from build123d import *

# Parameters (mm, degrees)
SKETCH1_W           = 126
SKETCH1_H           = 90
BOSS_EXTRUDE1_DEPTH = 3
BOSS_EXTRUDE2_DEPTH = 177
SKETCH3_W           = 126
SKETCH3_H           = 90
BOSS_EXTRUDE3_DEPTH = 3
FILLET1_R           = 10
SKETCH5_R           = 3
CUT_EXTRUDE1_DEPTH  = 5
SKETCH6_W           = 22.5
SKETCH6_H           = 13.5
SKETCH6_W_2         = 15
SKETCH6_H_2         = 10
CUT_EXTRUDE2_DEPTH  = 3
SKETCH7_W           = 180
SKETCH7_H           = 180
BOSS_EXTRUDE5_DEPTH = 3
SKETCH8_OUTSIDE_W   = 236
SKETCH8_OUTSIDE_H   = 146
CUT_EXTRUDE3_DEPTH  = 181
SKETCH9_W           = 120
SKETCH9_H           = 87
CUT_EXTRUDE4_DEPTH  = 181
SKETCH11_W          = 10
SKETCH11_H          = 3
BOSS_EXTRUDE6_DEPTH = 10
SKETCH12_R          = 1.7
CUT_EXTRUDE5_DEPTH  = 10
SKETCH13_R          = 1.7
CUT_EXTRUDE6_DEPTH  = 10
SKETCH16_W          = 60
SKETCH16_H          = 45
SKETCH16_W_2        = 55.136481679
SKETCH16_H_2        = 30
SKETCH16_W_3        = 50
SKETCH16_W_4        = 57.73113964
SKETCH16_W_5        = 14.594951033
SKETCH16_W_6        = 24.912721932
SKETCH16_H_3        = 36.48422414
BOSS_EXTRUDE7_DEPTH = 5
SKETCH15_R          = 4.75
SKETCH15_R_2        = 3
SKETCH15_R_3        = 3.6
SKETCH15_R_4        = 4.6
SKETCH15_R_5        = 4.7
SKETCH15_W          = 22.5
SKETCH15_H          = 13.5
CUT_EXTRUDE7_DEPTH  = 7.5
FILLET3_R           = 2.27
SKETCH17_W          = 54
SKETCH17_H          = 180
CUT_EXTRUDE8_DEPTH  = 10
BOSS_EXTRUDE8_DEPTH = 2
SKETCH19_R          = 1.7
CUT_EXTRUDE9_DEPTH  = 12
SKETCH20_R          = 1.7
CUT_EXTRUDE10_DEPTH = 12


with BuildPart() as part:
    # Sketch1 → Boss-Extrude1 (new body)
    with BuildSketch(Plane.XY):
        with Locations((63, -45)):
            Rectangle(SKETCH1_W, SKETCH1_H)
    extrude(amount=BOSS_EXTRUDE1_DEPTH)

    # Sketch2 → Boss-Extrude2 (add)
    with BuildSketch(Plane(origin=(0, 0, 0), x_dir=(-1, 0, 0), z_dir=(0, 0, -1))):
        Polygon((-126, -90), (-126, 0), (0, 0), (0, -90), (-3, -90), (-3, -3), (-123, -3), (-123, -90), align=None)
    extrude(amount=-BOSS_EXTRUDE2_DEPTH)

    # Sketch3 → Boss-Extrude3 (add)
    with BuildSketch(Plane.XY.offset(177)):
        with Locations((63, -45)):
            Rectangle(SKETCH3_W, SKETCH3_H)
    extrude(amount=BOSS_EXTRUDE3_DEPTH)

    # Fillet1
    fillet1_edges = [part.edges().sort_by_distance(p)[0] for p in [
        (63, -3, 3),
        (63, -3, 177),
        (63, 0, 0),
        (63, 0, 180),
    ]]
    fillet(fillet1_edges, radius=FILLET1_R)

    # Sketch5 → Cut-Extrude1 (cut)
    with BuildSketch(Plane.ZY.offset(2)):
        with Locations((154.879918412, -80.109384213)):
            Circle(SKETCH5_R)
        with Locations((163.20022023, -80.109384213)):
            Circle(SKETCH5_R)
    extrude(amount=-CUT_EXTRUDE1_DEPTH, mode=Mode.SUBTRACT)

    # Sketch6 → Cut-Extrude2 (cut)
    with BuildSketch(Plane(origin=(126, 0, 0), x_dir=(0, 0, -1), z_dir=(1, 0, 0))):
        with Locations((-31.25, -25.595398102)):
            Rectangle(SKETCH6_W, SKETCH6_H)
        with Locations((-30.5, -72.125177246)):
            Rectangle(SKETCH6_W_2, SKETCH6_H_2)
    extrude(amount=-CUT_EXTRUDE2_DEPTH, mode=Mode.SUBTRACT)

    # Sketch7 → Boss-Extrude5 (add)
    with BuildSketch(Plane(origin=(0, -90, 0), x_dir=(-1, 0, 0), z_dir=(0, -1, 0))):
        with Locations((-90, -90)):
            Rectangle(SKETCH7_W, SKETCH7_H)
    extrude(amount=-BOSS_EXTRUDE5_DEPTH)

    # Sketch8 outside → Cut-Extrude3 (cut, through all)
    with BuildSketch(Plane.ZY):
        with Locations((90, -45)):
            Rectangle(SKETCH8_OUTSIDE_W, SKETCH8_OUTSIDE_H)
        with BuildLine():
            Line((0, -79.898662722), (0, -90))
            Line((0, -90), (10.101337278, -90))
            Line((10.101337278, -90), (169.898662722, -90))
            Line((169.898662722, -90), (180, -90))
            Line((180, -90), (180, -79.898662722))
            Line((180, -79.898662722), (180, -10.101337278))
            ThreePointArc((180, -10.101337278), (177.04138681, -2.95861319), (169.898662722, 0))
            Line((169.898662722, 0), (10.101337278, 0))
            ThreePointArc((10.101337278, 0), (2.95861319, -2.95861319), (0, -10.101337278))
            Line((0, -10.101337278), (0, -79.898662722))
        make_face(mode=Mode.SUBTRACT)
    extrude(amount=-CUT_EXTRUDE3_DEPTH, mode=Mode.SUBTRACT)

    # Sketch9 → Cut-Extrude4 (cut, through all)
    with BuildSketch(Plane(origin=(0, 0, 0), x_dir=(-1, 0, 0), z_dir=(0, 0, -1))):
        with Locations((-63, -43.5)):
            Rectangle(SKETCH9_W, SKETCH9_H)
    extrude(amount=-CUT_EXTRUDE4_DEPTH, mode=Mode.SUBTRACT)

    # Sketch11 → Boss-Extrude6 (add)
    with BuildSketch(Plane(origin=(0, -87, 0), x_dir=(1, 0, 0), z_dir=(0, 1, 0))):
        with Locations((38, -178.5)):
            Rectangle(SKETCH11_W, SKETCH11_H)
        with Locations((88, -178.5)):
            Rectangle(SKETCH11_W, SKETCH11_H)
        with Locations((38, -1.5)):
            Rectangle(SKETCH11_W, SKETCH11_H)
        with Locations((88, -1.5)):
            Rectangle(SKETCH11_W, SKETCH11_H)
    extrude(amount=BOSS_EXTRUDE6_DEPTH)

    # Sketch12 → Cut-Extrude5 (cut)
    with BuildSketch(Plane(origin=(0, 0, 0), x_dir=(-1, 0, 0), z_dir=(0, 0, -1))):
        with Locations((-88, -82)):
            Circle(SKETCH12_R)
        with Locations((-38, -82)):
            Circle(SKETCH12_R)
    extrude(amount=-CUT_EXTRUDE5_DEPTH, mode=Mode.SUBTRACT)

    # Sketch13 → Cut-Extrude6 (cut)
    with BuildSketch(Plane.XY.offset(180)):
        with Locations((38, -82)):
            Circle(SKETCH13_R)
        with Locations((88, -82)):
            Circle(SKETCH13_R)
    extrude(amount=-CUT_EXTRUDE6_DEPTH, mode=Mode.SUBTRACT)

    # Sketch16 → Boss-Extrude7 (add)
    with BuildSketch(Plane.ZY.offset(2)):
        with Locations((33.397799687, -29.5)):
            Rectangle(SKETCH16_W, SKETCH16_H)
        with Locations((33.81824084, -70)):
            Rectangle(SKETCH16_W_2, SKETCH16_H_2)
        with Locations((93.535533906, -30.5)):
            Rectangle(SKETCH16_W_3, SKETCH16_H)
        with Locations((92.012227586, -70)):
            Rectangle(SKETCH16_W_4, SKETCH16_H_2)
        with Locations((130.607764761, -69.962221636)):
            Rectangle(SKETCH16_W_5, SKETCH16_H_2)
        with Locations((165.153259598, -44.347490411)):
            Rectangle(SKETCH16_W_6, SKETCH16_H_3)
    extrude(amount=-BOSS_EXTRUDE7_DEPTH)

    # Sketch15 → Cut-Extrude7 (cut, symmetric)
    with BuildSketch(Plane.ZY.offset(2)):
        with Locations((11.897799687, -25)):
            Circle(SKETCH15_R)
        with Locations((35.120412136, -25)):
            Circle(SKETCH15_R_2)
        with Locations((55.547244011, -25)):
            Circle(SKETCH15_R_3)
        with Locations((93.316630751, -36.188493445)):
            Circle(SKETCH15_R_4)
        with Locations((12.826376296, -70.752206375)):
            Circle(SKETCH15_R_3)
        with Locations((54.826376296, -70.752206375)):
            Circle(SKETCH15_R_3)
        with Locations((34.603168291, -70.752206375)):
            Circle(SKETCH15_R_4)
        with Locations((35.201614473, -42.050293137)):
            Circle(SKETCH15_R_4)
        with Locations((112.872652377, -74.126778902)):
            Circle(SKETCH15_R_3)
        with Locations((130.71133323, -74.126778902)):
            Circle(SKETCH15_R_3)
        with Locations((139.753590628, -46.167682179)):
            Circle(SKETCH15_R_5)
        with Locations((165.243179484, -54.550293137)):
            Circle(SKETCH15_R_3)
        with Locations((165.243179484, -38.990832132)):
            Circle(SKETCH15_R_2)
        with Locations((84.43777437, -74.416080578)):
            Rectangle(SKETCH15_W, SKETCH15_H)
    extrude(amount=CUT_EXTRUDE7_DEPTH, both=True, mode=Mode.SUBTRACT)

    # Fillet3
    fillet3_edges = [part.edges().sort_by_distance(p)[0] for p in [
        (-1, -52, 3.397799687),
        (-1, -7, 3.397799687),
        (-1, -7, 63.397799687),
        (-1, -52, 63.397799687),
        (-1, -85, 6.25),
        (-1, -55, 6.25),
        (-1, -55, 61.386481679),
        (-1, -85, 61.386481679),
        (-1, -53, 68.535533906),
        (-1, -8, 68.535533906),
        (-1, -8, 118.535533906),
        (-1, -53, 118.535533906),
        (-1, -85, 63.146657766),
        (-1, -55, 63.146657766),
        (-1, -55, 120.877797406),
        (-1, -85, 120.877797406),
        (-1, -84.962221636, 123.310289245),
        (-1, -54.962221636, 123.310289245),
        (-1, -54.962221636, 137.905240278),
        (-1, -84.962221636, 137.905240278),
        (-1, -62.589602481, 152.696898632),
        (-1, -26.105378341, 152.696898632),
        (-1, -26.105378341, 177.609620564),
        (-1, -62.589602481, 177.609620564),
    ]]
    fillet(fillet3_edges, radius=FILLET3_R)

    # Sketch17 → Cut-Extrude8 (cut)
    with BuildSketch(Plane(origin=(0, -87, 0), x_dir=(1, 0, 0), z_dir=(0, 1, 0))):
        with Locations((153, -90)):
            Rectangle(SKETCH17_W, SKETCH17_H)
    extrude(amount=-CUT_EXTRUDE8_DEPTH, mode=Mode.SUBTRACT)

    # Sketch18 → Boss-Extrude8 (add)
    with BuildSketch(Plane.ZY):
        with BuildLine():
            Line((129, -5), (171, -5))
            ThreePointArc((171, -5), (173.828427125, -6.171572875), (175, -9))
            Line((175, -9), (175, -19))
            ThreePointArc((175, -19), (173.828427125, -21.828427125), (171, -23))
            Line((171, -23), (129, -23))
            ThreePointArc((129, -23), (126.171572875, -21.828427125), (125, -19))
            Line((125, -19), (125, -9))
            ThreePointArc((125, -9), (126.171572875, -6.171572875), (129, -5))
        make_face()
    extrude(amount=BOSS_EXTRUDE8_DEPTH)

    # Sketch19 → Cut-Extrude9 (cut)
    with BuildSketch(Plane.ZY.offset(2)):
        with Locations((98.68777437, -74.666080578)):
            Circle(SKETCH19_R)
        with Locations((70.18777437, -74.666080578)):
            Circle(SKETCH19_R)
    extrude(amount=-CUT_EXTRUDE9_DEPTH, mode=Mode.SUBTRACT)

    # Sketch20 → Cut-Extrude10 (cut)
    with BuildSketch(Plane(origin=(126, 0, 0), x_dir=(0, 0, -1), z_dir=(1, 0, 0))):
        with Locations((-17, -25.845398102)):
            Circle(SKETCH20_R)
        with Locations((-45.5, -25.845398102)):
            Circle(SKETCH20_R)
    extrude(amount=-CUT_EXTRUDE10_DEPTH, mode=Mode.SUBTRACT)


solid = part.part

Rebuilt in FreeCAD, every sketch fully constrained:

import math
import FreeCAD as App
import Part
import Sketcher

V = App.Vector


def edges_at(feature, points):
    """Names of the edges that pass closest to the given points."""
    edges = feature.Shape.Edges
    near = lambda p: min(range(len(edges)), key=lambda i: edges[i].distToShape(Part.Vertex(*p))[0])
    return sorted({f"Edge{near(p) + 1}" for p in points})

doc = App.newDocument("Part")
body = doc.addObject("PartDesign::Body", "Body")

# Sketch on XY plane
sketch1 = body.newObject("Sketcher::SketchObject", "Sketch")
sketch1.AttachmentSupport = (doc.getObject("XY_Plane"), [""])
sketch1.MapMode = "FlatFace"
sketch1.addGeometry([
    Part.LineSegment(V(0, 0, 0), V(0, -90, 0)),
    Part.LineSegment(V(0, -90, 0), V(126, -90, 0)),
    Part.LineSegment(V(126, -90, 0), V(126, 0, 0)),
    Part.LineSegment(V(126, 0, 0), V(0, 0, 0)),
], False)
sketch1.addConstraint([
    Sketcher.Constraint("Coincident", 0, 2, 1, 1),
    Sketcher.Constraint("Coincident", 1, 2, 2, 1),
    Sketcher.Constraint("Coincident", 2, 2, 3, 1),
    Sketcher.Constraint("Coincident", 3, 2, 0, 1),
    Sketcher.Constraint("Vertical", 0),
    Sketcher.Constraint("Horizontal", 1),
    Sketcher.Constraint("Vertical", 2),
    Sketcher.Constraint("Horizontal", 3),
    Sketcher.Constraint("Coincident", 3, 2, -1, 1),
    Sketcher.Constraint("DistanceX", 1, 1, 1, 2, 126.0),
    Sketcher.Constraint("DistanceY", 0, 2, 0, 1, 90.0),
])
pad1 = body.newObject("PartDesign::Pad", "Pad")
pad1.Profile = sketch1
pad1.Length = 3

# Sketch on XY plane
sketch2 = body.newObject("Sketcher::SketchObject", "Sketch001")
sketch2.AttachmentSupport = (doc.getObject("XY_Plane"), [""])
sketch2.MapMode = "FlatFace"
sketch2.addGeometry([
    Part.LineSegment(V(126, 0, 0), V(126, -90, 0)),  # 0
    Part.LineSegment(V(126, -90, 0), V(123, -90, 0)),  # 1
    Part.LineSegment(V(123, -90, 0), V(123, -3, 0)),  # 2
    Part.LineSegment(V(123, -3, 0), V(3, -3, 0)),  # 3
    Part.LineSegment(V(3, -3, 0), V(3, -90, 0)),  # 4
    Part.LineSegment(V(3, -90, 0), V(0, -90, 0)),  # 5
    Part.LineSegment(V(0, -90, 0), V(0, 0, 0)),  # 6
    Part.LineSegment(V(0, 0, 0), V(126, 0, 0)),  # 7
], False)
sketch2.addConstraint([
    Sketcher.Constraint("Coincident", 0, 2, 1, 1),
    Sketcher.Constraint("Coincident", 1, 2, 2, 1),
    Sketcher.Constraint("Coincident", 2, 2, 3, 1),
    Sketcher.Constraint("Coincident", 3, 2, 4, 1),
    Sketcher.Constraint("Coincident", 4, 2, 5, 1),
    Sketcher.Constraint("Coincident", 5, 2, 6, 1),
    Sketcher.Constraint("Coincident", 6, 2, 7, 1),
    Sketcher.Constraint("Coincident", 7, 2, 0, 1),
    Sketcher.Constraint("Vertical", 0),
    Sketcher.Constraint("Horizontal", 1),
    Sketcher.Constraint("Vertical", 2),
    Sketcher.Constraint("Horizontal", 3),
    Sketcher.Constraint("Vertical", 4),
    Sketcher.Constraint("Horizontal", 5),
    Sketcher.Constraint("Vertical", 6),
    Sketcher.Constraint("Horizontal", 7),
    Sketcher.Constraint("Coincident", 6, 2, -1, 1),
    Sketcher.Constraint("Horizontal", 1, 2, 4, 2),
    Sketcher.Constraint("Equal", 1, 5),
    Sketcher.Constraint("DistanceX", 1, 2, 1, 1, 3.0),
    Sketcher.Constraint("DistanceX", 3, 2, 3, 1, 120.0),
    Sketcher.Constraint("DistanceY", 0, 2, 0, 1, 90.0),
    Sketcher.Constraint("DistanceY", 2, 1, 2, 2, 87.0),
])
pad2 = body.newObject("PartDesign::Pad", "Pad001")
pad2.Profile = sketch2
pad2.Length = 177

# Sketch on XY plane
sketch3 = body.newObject("Sketcher::SketchObject", "Sketch002")
sketch3.AttachmentSupport = (doc.getObject("XY_Plane"), [""])
sketch3.MapMode = "FlatFace"
sketch3.AttachmentOffset = App.Placement(V(0, 0, 177), App.Rotation())
sketch3.addGeometry([
    Part.LineSegment(V(0, 0, 0), V(0, -90, 0)),
    Part.LineSegment(V(0, -90, 0), V(126, -90, 0)),
    Part.LineSegment(V(126, -90, 0), V(126, 0, 0)),
    Part.LineSegment(V(126, 0, 0), V(0, 0, 0)),
], False)
sketch3.addConstraint([
    Sketcher.Constraint("Coincident", 0, 2, 1, 1),
    Sketcher.Constraint("Coincident", 1, 2, 2, 1),
    Sketcher.Constraint("Coincident", 2, 2, 3, 1),
    Sketcher.Constraint("Coincident", 3, 2, 0, 1),
    Sketcher.Constraint("Vertical", 0),
    Sketcher.Constraint("Horizontal", 1),
    Sketcher.Constraint("Vertical", 2),
    Sketcher.Constraint("Horizontal", 3),
    Sketcher.Constraint("Coincident", 3, 2, -1, 1),
    Sketcher.Constraint("DistanceX", 1, 1, 1, 2, 126.0),
    Sketcher.Constraint("DistanceY", 0, 2, 0, 1, 90.0),
])
pad3 = body.newObject("PartDesign::Pad", "Pad002")
pad3.Profile = sketch3
pad3.Length = 3
doc.recompute()

fillet = body.newObject("PartDesign::Fillet", "Fillet")
fillet.Base = (pad3, edges_at(pad3, [
    (63, -3, 3),
    (63, -3, 177),
    (63, 0, 0),
    (63, 0, 180),
]))
fillet.Radius = 10

# Sketch on YZ plane
sketch4 = body.newObject("Sketcher::SketchObject", "Sketch003")
sketch4.AttachmentSupport = (doc.getObject("YZ_Plane"), [""])
sketch4.MapMode = "FlatFace"
sketch4.AttachmentOffset = App.Placement(V(0, 0, -2), App.Rotation())
sketch4.addGeometry([
    Part.Circle(V(-80.1, 154.9, 0), V(0, 0, 1), 3),
    Part.Circle(V(-80.1, 163.2, 0), V(0, 0, 1), 3),
], False)
sketch4.addConstraint([
    Sketcher.Constraint("Equal", 0, 1),
    Sketcher.Constraint("Vertical", 0, 3, 1, 3),
    Sketcher.Constraint("Diameter", 0, 6.0),
    Sketcher.Constraint("DistanceY", 0, 3, 1, 3, 8.320302),
    Sketcher.Constraint("DistanceY", -1, 1, 0, 3, 154.879918),
    Sketcher.Constraint("DistanceX", 0, 3, -1, 1, 80.109384),
])
pocket1 = body.newObject("PartDesign::Pocket", "Pocket")
pocket1.Profile = sketch4
pocket1.Length = 5
pocket1.Reversed = True

# Sketch on YZ plane
sketch5 = body.newObject("Sketcher::SketchObject", "Sketch004")
sketch5.AttachmentSupport = (doc.getObject("YZ_Plane"), [""])
sketch5.MapMode = "FlatFace"
sketch5.AttachmentOffset = App.Placement(V(0, 0, 126), App.Rotation())
sketch5.addGeometry([
    Part.LineSegment(V(-19, 42, 0), V(-32, 42, 0)),  # 0
    Part.LineSegment(V(-32, 42, 0), V(-32, 20, 0)),  # 1
    Part.LineSegment(V(-32, 20, 0), V(-19, 20, 0)),  # 2
    Part.LineSegment(V(-19, 20, 0), V(-19, 42, 0)),  # 3
    Part.LineSegment(V(-67, 38, 0), V(-77, 38, 0)),  # 4
    Part.LineSegment(V(-77, 38, 0), V(-77, 23, 0)),  # 5
    Part.LineSegment(V(-77, 23, 0), V(-67, 23, 0)),  # 6
    Part.LineSegment(V(-67, 23, 0), V(-67, 38, 0)),  # 7
], False)
sketch5.addConstraint([
    Sketcher.Constraint("Coincident", 0, 2, 1, 1),
    Sketcher.Constraint("Coincident", 1, 2, 2, 1),
    Sketcher.Constraint("Coincident", 2, 2, 3, 1),
    Sketcher.Constraint("Coincident", 3, 2, 0, 1),
    Sketcher.Constraint("Coincident", 4, 2, 5, 1),
    Sketcher.Constraint("Coincident", 5, 2, 6, 1),
    Sketcher.Constraint("Coincident", 6, 2, 7, 1),
    Sketcher.Constraint("Coincident", 7, 2, 4, 1),
    Sketcher.Constraint("Horizontal", 0),
    Sketcher.Constraint("Vertical", 1),
    Sketcher.Constraint("Horizontal", 2),
    Sketcher.Constraint("Vertical", 3),
    Sketcher.Constraint("Horizontal", 4),
    Sketcher.Constraint("Vertical", 5),
    Sketcher.Constraint("Horizontal", 6),
    Sketcher.Constraint("Vertical", 7),
    Sketcher.Constraint("DistanceX", 4, 2, 4, 1, 10.0),
    Sketcher.Constraint("DistanceY", 5, 2, 5, 1, 15.0),
    Sketcher.Constraint("DistanceX", 0, 2, 0, 1, 13.5),
    Sketcher.Constraint("DistanceY", 1, 2, 1, 1, 22.5),
    Sketcher.Constraint("DistanceY", -1, 1, 1, 2, 20.0),
    Sketcher.Constraint("DistanceY", -1, 1, 4, 2, 38.0),
    Sketcher.Constraint("DistanceX", 0, 2, -1, 1, 32.345398),
    Sketcher.Constraint("DistanceX", 4, 2, 0, 2, 44.779779),
])
pocket2 = body.newObject("PartDesign::Pocket", "Pocket001")
pocket2.Profile = sketch5
pocket2.Length = 3

# Sketch on XZ plane
sketch6 = body.newObject("Sketcher::SketchObject", "Sketch005")
sketch6.AttachmentSupport = (doc.getObject("XZ_Plane"), [""])
sketch6.MapMode = "FlatFace"
sketch6.AttachmentOffset = App.Placement(V(0, 0, 90), App.Rotation())
sketch6.addGeometry([
    Part.LineSegment(V(180, 0, 0), V(180, 180, 0)),
    Part.LineSegment(V(180, 180, 0), V(0, 180, 0)),
    Part.LineSegment(V(0, 180, 0), V(0, 0, 0)),
    Part.LineSegment(V(0, 0, 0), V(180, 0, 0)),
], False)
sketch6.addConstraint([
    Sketcher.Constraint("Coincident", 0, 2, 1, 1),
    Sketcher.Constraint("Coincident", 1, 2, 2, 1),
    Sketcher.Constraint("Coincident", 2, 2, 3, 1),
    Sketcher.Constraint("Coincident", 3, 2, 0, 1),
    Sketcher.Constraint("Vertical", 0),
    Sketcher.Constraint("Horizontal", 1),
    Sketcher.Constraint("Vertical", 2),
    Sketcher.Constraint("Horizontal", 3),
    Sketcher.Constraint("Coincident", 2, 2, -1, 1),
    Sketcher.Constraint("Equal", 3, 0),
    Sketcher.Constraint("DistanceX", 1, 2, 1, 1, 180.0),
])
pad4 = body.newObject("PartDesign::Pad", "Pad003")
pad4.Profile = sketch6
pad4.Length = 3
pad4.Reversed = True

# Sketch on YZ plane
sketch7 = body.newObject("Sketcher::SketchObject", "Sketch006")
sketch7.AttachmentSupport = (doc.getObject("YZ_Plane"), [""])
sketch7.MapMode = "FlatFace"
sketch7.addGeometry([
    Part.LineSegment(V(28, -28, 0), V(-118, -28, 0)),  # 0
    Part.LineSegment(V(-118, -28, 0), V(-118, 208, 0)),  # 1
    Part.LineSegment(V(-118, 208, 0), V(28, 208, 0)),  # 2
    Part.LineSegment(V(28, 208, 0), V(28, -28, 0)),  # 3
    Part.LineSegment(V(-90, 180, 0), V(-90, 0, 0)),  # 4
    Part.LineSegment(V(-90, 0, 0), V(-10, 0, 0)),  # 5
    Part.ArcOfCircle(Part.Circle(V(-10, 10, 0), V(0, 0, 1), 10), math.radians(-90), math.radians(0)),  # 6
    Part.LineSegment(V(0, 10, 0), V(0, 170, 0)),  # 7
    Part.ArcOfCircle(Part.Circle(V(-10, 170, 0), V(0, 0, 1), 10), math.radians(0), math.radians(90)),  # 8
    Part.LineSegment(V(-10, 180, 0), V(-90, 180, 0)),  # 9
], False)
sketch7.addConstraint([
    Sketcher.Constraint("Coincident", 0, 2, 1, 1),
    Sketcher.Constraint("Coincident", 1, 2, 2, 1),
    Sketcher.Constraint("Coincident", 2, 2, 3, 1),
    Sketcher.Constraint("Coincident", 3, 2, 0, 1),
    Sketcher.Constraint("Coincident", 4, 2, 5, 1),
    Sketcher.Constraint("Tangent", 5, 2, 6, 1),
    Sketcher.Constraint("Tangent", 6, 2, 7, 1),
    Sketcher.Constraint("Tangent", 7, 2, 8, 1),
    Sketcher.Constraint("Tangent", 8, 2, 9, 1),
    Sketcher.Constraint("Coincident", 9, 2, 4, 1),
    Sketcher.Constraint("Horizontal", 0),
    Sketcher.Constraint("Vertical", 1),
    Sketcher.Constraint("Horizontal", 2),
    Sketcher.Constraint("Vertical", 3),
    Sketcher.Constraint("Vertical", 4),
    Sketcher.Constraint("Horizontal", 5),
    Sketcher.Constraint("Vertical", 7),
    Sketcher.Constraint("Horizontal", 9),
    Sketcher.Constraint("Equal", 6, 8),
    Sketcher.Constraint("PointOnObject", 4, 2, -1),
    Sketcher.Constraint("PointOnObject", 6, 2, -2),
    Sketcher.Constraint("DistanceX", 0, 2, 0, 1, 146.0),
    Sketcher.Constraint("DistanceY", 1, 1, 1, 2, 236.0),
    Sketcher.Constraint("DistanceY", 4, 2, 4, 1, 180.0),
    Sketcher.Constraint("DistanceX", 0, 2, -1, 1, 118.0),
    Sketcher.Constraint("DistanceY", 0, 2, -1, 1, 28.0),
    Sketcher.Constraint("DistanceX", 4, 2, -1, 1, 90.0),
    Sketcher.Constraint("Radius", 6, 10.101337),
])
pocket3 = body.newObject("PartDesign::Pocket", "Pocket002")
pocket3.Profile = sketch7
pocket3.Type = "ThroughAll"
pocket3.Reversed = True

# Sketch on XY plane
sketch8 = body.newObject("Sketcher::SketchObject", "Sketch007")
sketch8.AttachmentSupport = (doc.getObject("XY_Plane"), [""])
sketch8.MapMode = "FlatFace"
sketch8.addGeometry([
    Part.LineSegment(V(123, 0, 0), V(123, -87, 0)),
    Part.LineSegment(V(123, -87, 0), V(3, -87, 0)),
    Part.LineSegment(V(3, -87, 0), V(3, 0, 0)),
    Part.LineSegment(V(3, 0, 0), V(123, 0, 0)),
], False)
sketch8.addConstraint([
    Sketcher.Constraint("Coincident", 0, 2, 1, 1),
    Sketcher.Constraint("Coincident", 1, 2, 2, 1),
    Sketcher.Constraint("Coincident", 2, 2, 3, 1),
    Sketcher.Constraint("Coincident", 3, 2, 0, 1),
    Sketcher.Constraint("Vertical", 0),
    Sketcher.Constraint("Horizontal", 1),
    Sketcher.Constraint("Vertical", 2),
    Sketcher.Constraint("Horizontal", 3),
    Sketcher.Constraint("PointOnObject", 2, 2, -1),
    Sketcher.Constraint("DistanceX", 1, 2, 1, 1, 120.0),
    Sketcher.Constraint("DistanceY", 0, 2, 0, 1, 87.0),
    Sketcher.Constraint("DistanceX", -1, 1, 0, 2, 123.0),
])
pocket4 = body.newObject("PartDesign::Pocket", "Pocket003")
pocket4.Profile = sketch8
pocket4.Type = "ThroughAll"
pocket4.Reversed = True

# Sketch on XZ plane
sketch9 = body.newObject("Sketcher::SketchObject", "Sketch008")
sketch9.AttachmentSupport = (doc.getObject("XZ_Plane"), [""])
sketch9.MapMode = "FlatFace"
sketch9.AttachmentOffset = App.Placement(V(0, 0, 87), App.Rotation())
sketch9.addGeometry([
    Part.LineSegment(V(33, 177, 0), V(33, 180, 0)),  # 0
    Part.LineSegment(V(33, 180, 0), V(43, 180, 0)),  # 1
    Part.LineSegment(V(43, 180, 0), V(43, 177, 0)),  # 2
    Part.LineSegment(V(43, 177, 0), V(33, 177, 0)),  # 3
    Part.LineSegment(V(83, 177, 0), V(83, 180, 0)),  # 4
    Part.LineSegment(V(83, 180, 0), V(93, 180, 0)),  # 5
    Part.LineSegment(V(93, 180, 0), V(93, 177, 0)),  # 6
    Part.LineSegment(V(93, 177, 0), V(83, 177, 0)),  # 7
    Part.LineSegment(V(33, 0, 0), V(33, 3, 0)),  # 8
    Part.LineSegment(V(33, 3, 0), V(43, 3, 0)),  # 9
    Part.LineSegment(V(43, 3, 0), V(43, 0, 0)),  # 10
    Part.LineSegment(V(43, 0, 0), V(33, 0, 0)),  # 11
    Part.LineSegment(V(83, 0, 0), V(83, 3, 0)),  # 12
    Part.LineSegment(V(83, 3, 0), V(93, 3, 0)),  # 13
    Part.LineSegment(V(93, 3, 0), V(93, 0, 0)),  # 14
    Part.LineSegment(V(93, 0, 0), V(83, 0, 0)),  # 15
], False)
sketch9.addConstraint([
    Sketcher.Constraint("Coincident", 0, 2, 1, 1),
    Sketcher.Constraint("Coincident", 1, 2, 2, 1),
    Sketcher.Constraint("Coincident", 2, 2, 3, 1),
    Sketcher.Constraint("Coincident", 3, 2, 0, 1),
    Sketcher.Constraint("Coincident", 4, 2, 5, 1),
    Sketcher.Constraint("Coincident", 5, 2, 6, 1),
    Sketcher.Constraint("Coincident", 6, 2, 7, 1),
    Sketcher.Constraint("Coincident", 7, 2, 4, 1),
    Sketcher.Constraint("Coincident", 8, 2, 9, 1),
    Sketcher.Constraint("Coincident", 9, 2, 10, 1),
    Sketcher.Constraint("Coincident", 10, 2, 11, 1),
    Sketcher.Constraint("Coincident", 11, 2, 8, 1),
    Sketcher.Constraint("Coincident", 12, 2, 13, 1),
    Sketcher.Constraint("Coincident", 13, 2, 14, 1),
    Sketcher.Constraint("Coincident", 14, 2, 15, 1),
    Sketcher.Constraint("Coincident", 15, 2, 12, 1),
    Sketcher.Constraint("Vertical", 0),
    Sketcher.Constraint("Horizontal", 1),
    Sketcher.Constraint("Vertical", 2),
    Sketcher.Constraint("Horizontal", 3),
    Sketcher.Constraint("Vertical", 4),
    Sketcher.Constraint("Horizontal", 5),
    Sketcher.Constraint("Vertical", 6),
    Sketcher.Constraint("Horizontal", 7),
    Sketcher.Constraint("Vertical", 8),
    Sketcher.Constraint("Horizontal", 9),
    Sketcher.Constraint("Vertical", 10),
    Sketcher.Constraint("Horizontal", 11),
    Sketcher.Constraint("Vertical", 12),
    Sketcher.Constraint("Horizontal", 13),
    Sketcher.Constraint("Vertical", 14),
    Sketcher.Constraint("Horizontal", 15),
    Sketcher.Constraint("PointOnObject", 10, 2, -1),
    Sketcher.Constraint("PointOnObject", 14, 2, -1),
    Sketcher.Constraint("Horizontal", 1, 2, 4, 2),
    Sketcher.Constraint("Horizontal", 3, 2, 6, 2),
    Sketcher.Constraint("Horizontal", 9, 2, 12, 2),
    Sketcher.Constraint("Vertical", 3, 2, 8, 2),
    Sketcher.Constraint("Vertical", 2, 2, 9, 2),
    Sketcher.Constraint("Vertical", 7, 2, 12, 2),
    Sketcher.Constraint("Vertical", 6, 2, 13, 2),
    Sketcher.Constraint("Equal", 3, 5),
    Sketcher.Constraint("Equal", 6, 8),
    Sketcher.Constraint("DistanceX", 1, 1, 1, 2, 10.0),
    Sketcher.Constraint("DistanceY", 0, 1, 0, 2, 3.0),
    Sketcher.Constraint("DistanceX", -1, 1, 0, 2, 33.0),
    Sketcher.Constraint("DistanceY", -1, 1, 0, 2, 180.0),
    Sketcher.Constraint("DistanceX", -1, 1, 4, 2, 83.0),
])
pad5 = body.newObject("PartDesign::Pad", "Pad004")
pad5.Profile = sketch9
pad5.Length = 10
pad5.Reversed = True

# Sketch on XY plane
sketch10 = body.newObject("Sketcher::SketchObject", "Sketch009")
sketch10.AttachmentSupport = (doc.getObject("XY_Plane"), [""])
sketch10.MapMode = "FlatFace"
sketch10.addGeometry([
    Part.Circle(V(88, -82, 0), V(0, 0, 1), 1.7),
    Part.Circle(V(38, -82, 0), V(0, 0, 1), 1.7),
], False)
sketch10.addConstraint([
    Sketcher.Constraint("Equal", 0, 1),
    Sketcher.Constraint("Horizontal", 0, 3, 1, 3),
    Sketcher.Constraint("Diameter", 0, 3.4),
    Sketcher.Constraint("DistanceX", -1, 1, 0, 3, 88.0),
    Sketcher.Constraint("DistanceY", 0, 3, -1, 1, 82.0),
    Sketcher.Constraint("DistanceX", -1, 1, 1, 3, 38.0),
])
pocket5 = body.newObject("PartDesign::Pocket", "Pocket004")
pocket5.Profile = sketch10
pocket5.Length = 10
pocket5.Reversed = True

# Sketch on XY plane
sketch11 = body.newObject("Sketcher::SketchObject", "Sketch010")
sketch11.AttachmentSupport = (doc.getObject("XY_Plane"), [""])
sketch11.MapMode = "FlatFace"
sketch11.AttachmentOffset = App.Placement(V(0, 0, 180), App.Rotation())
sketch11.addGeometry([
    Part.Circle(V(38, -82, 0), V(0, 0, 1), 1.7),
    Part.Circle(V(88, -82, 0), V(0, 0, 1), 1.7),
], False)
sketch11.addConstraint([
    Sketcher.Constraint("Equal", 0, 1),
    Sketcher.Constraint("Horizontal", 0, 3, 1, 3),
    Sketcher.Constraint("Diameter", 0, 3.4),
    Sketcher.Constraint("DistanceX", -1, 1, 0, 3, 38.0),
    Sketcher.Constraint("DistanceY", 0, 3, -1, 1, 82.0),
    Sketcher.Constraint("DistanceX", -1, 1, 1, 3, 88.0),
])
pocket6 = body.newObject("PartDesign::Pocket", "Pocket005")
pocket6.Profile = sketch11
pocket6.Length = 10

# Sketch on YZ plane
sketch12 = body.newObject("Sketcher::SketchObject", "Sketch011")
sketch12.AttachmentSupport = (doc.getObject("YZ_Plane"), [""])
sketch12.MapMode = "FlatFace"
sketch12.AttachmentOffset = App.Placement(V(0, 0, -2), App.Rotation())
sketch12.addGeometry([
    Part.LineSegment(V(-7, 3, 0), V(-52, 3, 0)),  # 0
    Part.LineSegment(V(-52, 3, 0), V(-52, 63, 0)),  # 1
    Part.LineSegment(V(-52, 63, 0), V(-7, 63, 0)),  # 2
    Part.LineSegment(V(-7, 63, 0), V(-7, 3, 0)),  # 3
    Part.LineSegment(V(-55, 6, 0), V(-85, 6, 0)),  # 4
    Part.LineSegment(V(-85, 6, 0), V(-85, 61, 0)),  # 5
    Part.LineSegment(V(-85, 61, 0), V(-55, 61, 0)),  # 6
    Part.LineSegment(V(-55, 61, 0), V(-55, 6, 0)),  # 7
    Part.LineSegment(V(-8, 69, 0), V(-53, 69, 0)),  # 8
    Part.LineSegment(V(-53, 69, 0), V(-53, 119, 0)),  # 9
    Part.LineSegment(V(-53, 119, 0), V(-8, 119, 0)),  # 10
    Part.LineSegment(V(-8, 119, 0), V(-8, 69, 0)),  # 11
    Part.LineSegment(V(-55, 63, 0), V(-85, 63, 0)),  # 12
    Part.LineSegment(V(-85, 63, 0), V(-85, 121, 0)),  # 13
    Part.LineSegment(V(-85, 121, 0), V(-55, 121, 0)),  # 14
    Part.LineSegment(V(-55, 121, 0), V(-55, 63, 0)),  # 15
    Part.LineSegment(V(-55, 123, 0), V(-85, 123, 0)),  # 16
    Part.LineSegment(V(-85, 123, 0), V(-85, 138, 0)),  # 17
    Part.LineSegment(V(-85, 138, 0), V(-55, 138, 0)),  # 18
    Part.LineSegment(V(-55, 138, 0), V(-55, 123, 0)),  # 19
    Part.LineSegment(V(-26, 153, 0), V(-63, 153, 0)),  # 20
    Part.LineSegment(V(-63, 153, 0), V(-63, 178, 0)),  # 21
    Part.LineSegment(V(-63, 178, 0), V(-26, 178, 0)),  # 22
    Part.LineSegment(V(-26, 178, 0), V(-26, 153, 0)),  # 23
], False)
sketch12.addConstraint([
    Sketcher.Constraint("Coincident", 0, 2, 1, 1),
    Sketcher.Constraint("Coincident", 1, 2, 2, 1),
    Sketcher.Constraint("Coincident", 2, 2, 3, 1),
    Sketcher.Constraint("Coincident", 3, 2, 0, 1),
    Sketcher.Constraint("Coincident", 4, 2, 5, 1),
    Sketcher.Constraint("Coincident", 5, 2, 6, 1),
    Sketcher.Constraint("Coincident", 6, 2, 7, 1),
    Sketcher.Constraint("Coincident", 7, 2, 4, 1),
    Sketcher.Constraint("Coincident", 8, 2, 9, 1),
    Sketcher.Constraint("Coincident", 9, 2, 10, 1),
    Sketcher.Constraint("Coincident", 10, 2, 11, 1),
    Sketcher.Constraint("Coincident", 11, 2, 8, 1),
    Sketcher.Constraint("Coincident", 12, 2, 13, 1),
    Sketcher.Constraint("Coincident", 13, 2, 14, 1),
    Sketcher.Constraint("Coincident", 14, 2, 15, 1),
    Sketcher.Constraint("Coincident", 15, 2, 12, 1),
    Sketcher.Constraint("Coincident", 16, 2, 17, 1),
    Sketcher.Constraint("Coincident", 17, 2, 18, 1),
    Sketcher.Constraint("Coincident", 18, 2, 19, 1),
    Sketcher.Constraint("Coincident", 19, 2, 16, 1),
    Sketcher.Constraint("Coincident", 20, 2, 21, 1),
    Sketcher.Constraint("Coincident", 21, 2, 22, 1),
    Sketcher.Constraint("Coincident", 22, 2, 23, 1),
    Sketcher.Constraint("Coincident", 23, 2, 20, 1),
    Sketcher.Constraint("Horizontal", 0),
    Sketcher.Constraint("Vertical", 1),
    Sketcher.Constraint("Horizontal", 2),
    Sketcher.Constraint("Vertical", 3),
    Sketcher.Constraint("Horizontal", 4),
    Sketcher.Constraint("Vertical", 5),
    Sketcher.Constraint("Horizontal", 6),
    Sketcher.Constraint("Vertical", 7),
    Sketcher.Constraint("Horizontal", 8),
    Sketcher.Constraint("Vertical", 9),
    Sketcher.Constraint("Horizontal", 10),
    Sketcher.Constraint("Vertical", 11),
    Sketcher.Constraint("Horizontal", 12),
    Sketcher.Constraint("Vertical", 13),
    Sketcher.Constraint("Horizontal", 14),
    Sketcher.Constraint("Vertical", 15),
    Sketcher.Constraint("Horizontal", 16),
    Sketcher.Constraint("Vertical", 17),
    Sketcher.Constraint("Horizontal", 18),
    Sketcher.Constraint("Vertical", 19),
    Sketcher.Constraint("Horizontal", 20),
    Sketcher.Constraint("Vertical", 21),
    Sketcher.Constraint("Horizontal", 22),
    Sketcher.Constraint("Vertical", 23),
    Sketcher.Constraint("Vertical", 5, 2, 12, 2),
    Sketcher.Constraint("Vertical", 7, 2, 14, 2),
    Sketcher.Constraint("Equal", 2, 8),
    Sketcher.Constraint("Equal", 14, 16),
    Sketcher.Constraint("DistanceX", 0, 2, 0, 1, 45.0),
    Sketcher.Constraint("DistanceX", 4, 2, 4, 1, 30.0),
    Sketcher.Constraint("DistanceY", 1, 1, 1, 2, 60.0),
    Sketcher.Constraint("DistanceY", 9, 1, 9, 2, 50.0),
    Sketcher.Constraint("DistanceX", 0, 2, -1, 1, 52.0),
    Sketcher.Constraint("DistanceX", 4, 2, -1, 1, 85.0),
    Sketcher.Constraint("DistanceX", 8, 2, -1, 1, 53.0),
    Sketcher.Constraint("DistanceY", -1, 1, 4, 2, 6.25),
    Sketcher.Constraint("DistanceY", 5, 1, 5, 2, 55.136482),
    Sketcher.Constraint("DistanceY", 13, 1, 13, 2, 57.73114),
    Sketcher.Constraint("DistanceY", 17, 1, 17, 2, 14.594951),
    Sketcher.Constraint("DistanceY", 21, 1, 21, 2, 24.912722),
    Sketcher.Constraint("DistanceY", -1, 1, 0, 2, 3.3978),
    Sketcher.Constraint("DistanceY", -1, 1, 20, 2, 152.696899),
    Sketcher.Constraint("DistanceY", 14, 2, 20, 2, 31.819101),
    Sketcher.Constraint("DistanceX", 20, 2, 20, 1, 36.484224),
    Sketcher.Constraint("DistanceX", 16, 2, -1, 1, 84.962222),
    Sketcher.Constraint("DistanceY", -1, 1, 16, 2, 123.310289),
    Sketcher.Constraint("DistanceX", 22, 2, -1, 1, 26.105378),
    Sketcher.Constraint("DistanceY", -1, 1, 8, 2, 68.535534),
])
pad6 = body.newObject("PartDesign::Pad", "Pad005")
pad6.Profile = sketch12
pad6.Length = 5

# Sketch on YZ plane
sketch13 = body.newObject("Sketcher::SketchObject", "Sketch012")
sketch13.AttachmentSupport = (doc.getObject("YZ_Plane"), [""])
sketch13.MapMode = "FlatFace"
sketch13.AttachmentOffset = App.Placement(V(0, 0, -2), App.Rotation())
sketch13.addGeometry([
    Part.Circle(V(-25, 11.9, 0), V(0, 0, 1), 4.8),  # 0
    Part.Circle(V(-25, 35.1, 0), V(0, 0, 1), 3),  # 1
    Part.Circle(V(-25, 55.5, 0), V(0, 0, 1), 3.6),  # 2
    Part.Circle(V(-36.2, 93.3, 0), V(0, 0, 1), 4.6),  # 3
    Part.Circle(V(-70.8, 12.8, 0), V(0, 0, 1), 3.6),  # 4
    Part.Circle(V(-70.8, 54.8, 0), V(0, 0, 1), 3.6),  # 5
    Part.Circle(V(-70.8, 34.6, 0), V(0, 0, 1), 4.6),  # 6
    Part.Circle(V(-42.1, 35.2, 0), V(0, 0, 1), 4.6),  # 7
    Part.Circle(V(-74.1, 112.9, 0), V(0, 0, 1), 3.6),  # 8
    Part.Circle(V(-74.1, 130.7, 0), V(0, 0, 1), 3.6),  # 9
    Part.Circle(V(-46.2, 139.8, 0), V(0, 0, 1), 4.7),  # 10
    Part.Circle(V(-54.6, 165.2, 0), V(0, 0, 1), 3.6),  # 11
    Part.Circle(V(-39, 165.2, 0), V(0, 0, 1), 3),  # 12
    Part.LineSegment(V(-67.7, 73.2, 0), V(-81.2, 73.2, 0)),  # 13
    Part.LineSegment(V(-81.2, 73.2, 0), V(-81.2, 95.7, 0)),  # 14
    Part.LineSegment(V(-81.2, 95.7, 0), V(-67.7, 95.7, 0)),  # 15
    Part.LineSegment(V(-67.7, 95.7, 0), V(-67.7, 73.2, 0)),  # 16
], False)
sketch13.addConstraint([
    Sketcher.Constraint("Coincident", 13, 2, 14, 1),
    Sketcher.Constraint("Coincident", 14, 2, 15, 1),
    Sketcher.Constraint("Coincident", 15, 2, 16, 1),
    Sketcher.Constraint("Coincident", 16, 2, 13, 1),
    Sketcher.Constraint("Horizontal", 13),
    Sketcher.Constraint("Vertical", 14),
    Sketcher.Constraint("Horizontal", 15),
    Sketcher.Constraint("Vertical", 16),
    Sketcher.Constraint("Equal", 2, 4),
    Sketcher.Constraint("Equal", 4, 5),
    Sketcher.Constraint("Equal", 3, 6),
    Sketcher.Constraint("Equal", 6, 7),
    Sketcher.Constraint("Equal", 5, 8),
    Sketcher.Constraint("Equal", 8, 9),
    Sketcher.Constraint("Equal", 9, 11),
    Sketcher.Constraint("Equal", 1, 12),
    Sketcher.Constraint("Horizontal", 11, 3, 12, 3),
    Sketcher.Constraint("Vertical", 0, 3, 1, 3),
    Sketcher.Constraint("Vertical", 1, 3, 2, 3),
    Sketcher.Constraint("Vertical", 4, 3, 5, 3),
    Sketcher.Constraint("Vertical", 5, 3, 6, 3),
    Sketcher.Constraint("Vertical", 8, 3, 9, 3),
    Sketcher.Constraint("Diameter", 1, 6.0),
    Sketcher.Constraint("Diameter", 0, 9.5),
    Sketcher.Constraint("Diameter", 2, 7.2),
    Sketcher.Constraint("Diameter", 3, 9.2),
    Sketcher.Constraint("Diameter", 10, 9.4),
    Sketcher.Constraint("DistanceX", 13, 2, 13, 1, 13.5),
    Sketcher.Constraint("DistanceY", 14, 1, 14, 2, 22.5),
    Sketcher.Constraint("DistanceX", 0, 3, -1, 1, 25.0),
    Sketcher.Constraint("DistanceY", 4, 3, 5, 3, 42.0),
    Sketcher.Constraint("DistanceY", -1, 1, 0, 3, 11.8978),
    Sketcher.Constraint("DistanceX", 11, 3, 3, 3, 18.3618),
    Sketcher.Constraint("DistanceY", 5, 3, 13, 2, 18.361398),
    Sketcher.Constraint("DistanceX", 13, 2, 8, 3, 7.039302),
    Sketcher.Constraint("DistanceY", -1, 1, 3, 3, 93.316631),
    Sketcher.Constraint("DistanceY", -1, 1, 6, 3, 34.603168),
    Sketcher.Constraint("DistanceX", 8, 3, -1, 1, 74.126779),
    Sketcher.Constraint("DistanceY", -1, 1, 10, 3, 139.753591),
    Sketcher.Constraint("DistanceY", -1, 1, 11, 3, 165.243179),
    Sketcher.Constraint("DistanceY", 1, 3, 2, 3, 20.426832),
    Sketcher.Constraint("DistanceY", 1, 3, 3, 3, 58.196219),
    Sketcher.Constraint("DistanceY", 6, 3, 5, 3, 20.223208),
    Sketcher.Constraint("DistanceY", 7, 3, 2, 3, 20.34563),
    Sketcher.Constraint("DistanceY", 3, 3, 8, 3, 19.556022),
    Sketcher.Constraint("DistanceY", 8, 3, 9, 3, 17.838681),
    Sketcher.Constraint("DistanceX", 10, 3, 3, 3, 9.979189),
    Sketcher.Constraint("DistanceX", 11, 3, 12, 3, 15.559461),
    Sketcher.Constraint("DistanceX", 3, 3, -1, 1, 36.188493),
    Sketcher.Constraint("DistanceX", 4, 3, -1, 1, 70.752206),
    Sketcher.Constraint("DistanceX", 7, 3, -1, 1, 42.050293),
])
pocket7 = body.newObject("PartDesign::Pocket", "Pocket006")
pocket7.Profile = sketch13
pocket7.Length = 15
pocket7.Midplane = True
doc.recompute()

fillet2 = body.newObject("PartDesign::Fillet", "Fillet001")
fillet2.Base = (pocket7, edges_at(pocket7, [
    (-1, -52, 3.398),
    (-1, -7, 3.398),
    (-1, -7, 63.398),
    (-1, -52, 63.398),
    (-1, -85, 6.25),
    (-1, -55, 6.25),
    (-1, -55, 61.386),
    (-1, -85, 61.386),
    (-1, -53, 68.536),
    (-1, -8, 68.536),
    (-1, -8, 118.536),
    (-1, -53, 118.536),
    (-1, -85, 63.147),
    (-1, -55, 63.147),
    (-1, -55, 120.878),
    (-1, -85, 120.878),
    (-1, -84.962, 123.31),
    (-1, -54.962, 123.31),
    (-1, -54.962, 137.905),
    (-1, -84.962, 137.905),
    (-1, -62.59, 152.697),
    (-1, -26.105, 152.697),
    (-1, -26.105, 177.61),
    (-1, -62.59, 177.61),
]))
fillet2.Radius = 2.27

# Sketch on XZ plane
sketch14 = body.newObject("Sketcher::SketchObject", "Sketch013")
sketch14.AttachmentSupport = (doc.getObject("XZ_Plane"), [""])
sketch14.MapMode = "FlatFace"
sketch14.AttachmentOffset = App.Placement(V(0, 0, 87), App.Rotation())
sketch14.addGeometry([
    Part.LineSegment(V(126, 0, 0), V(126, 180, 0)),
    Part.LineSegment(V(126, 180, 0), V(180, 180, 0)),
    Part.LineSegment(V(180, 180, 0), V(180, 0, 0)),
    Part.LineSegment(V(180, 0, 0), V(126, 0, 0)),
], False)
sketch14.addConstraint([
    Sketcher.Constraint("Coincident", 0, 2, 1, 1),
    Sketcher.Constraint("Coincident", 1, 2, 2, 1),
    Sketcher.Constraint("Coincident", 2, 2, 3, 1),
    Sketcher.Constraint("Coincident", 3, 2, 0, 1),
    Sketcher.Constraint("Vertical", 0),
    Sketcher.Constraint("Horizontal", 1),
    Sketcher.Constraint("Vertical", 2),
    Sketcher.Constraint("Horizontal", 3),
    Sketcher.Constraint("PointOnObject", 2, 2, -1),
    Sketcher.Constraint("DistanceX", 1, 1, 1, 2, 54.0),
    Sketcher.Constraint("DistanceY", 0, 1, 0, 2, 180.0),
    Sketcher.Constraint("DistanceX", -1, 1, 0, 2, 126.0),
])
pocket8 = body.newObject("PartDesign::Pocket", "Pocket007")
pocket8.Profile = sketch14
pocket8.Length = 10
pocket8.Reversed = True

# Sketch on YZ plane
sketch15 = body.newObject("Sketcher::SketchObject", "Sketch014")
sketch15.AttachmentSupport = (doc.getObject("YZ_Plane"), [""])
sketch15.MapMode = "FlatFace"
sketch15.addGeometry([
    Part.LineSegment(V(-5, 171, 0), V(-5, 129, 0)),  # 0
    Part.ArcOfCircle(Part.Circle(V(-9, 129, 0), V(0, 0, 1), 4), math.radians(-90), math.radians(0)),  # 1
    Part.LineSegment(V(-9, 125, 0), V(-19, 125, 0)),  # 2
    Part.ArcOfCircle(Part.Circle(V(-19, 129, 0), V(0, 0, 1), 4), math.radians(180), math.radians(270)),  # 3
    Part.LineSegment(V(-23, 129, 0), V(-23, 171, 0)),  # 4
    Part.ArcOfCircle(Part.Circle(V(-19, 171, 0), V(0, 0, 1), 4), math.radians(90), math.radians(180)),  # 5
    Part.LineSegment(V(-19, 175, 0), V(-9, 175, 0)),  # 6
    Part.ArcOfCircle(Part.Circle(V(-9, 171, 0), V(0, 0, 1), 4), math.radians(0), math.radians(90)),  # 7
], False)
sketch15.addConstraint([
    Sketcher.Constraint("Tangent", 0, 2, 1, 2),
    Sketcher.Constraint("Tangent", 1, 1, 2, 1),
    Sketcher.Constraint("Tangent", 2, 2, 3, 2),
    Sketcher.Constraint("Tangent", 3, 1, 4, 1),
    Sketcher.Constraint("Tangent", 4, 2, 5, 2),
    Sketcher.Constraint("Tangent", 5, 1, 6, 1),
    Sketcher.Constraint("Tangent", 6, 2, 7, 2),
    Sketcher.Constraint("Tangent", 7, 1, 0, 1),
    Sketcher.Constraint("Vertical", 0),
    Sketcher.Constraint("Horizontal", 2),
    Sketcher.Constraint("Vertical", 4),
    Sketcher.Constraint("Horizontal", 6),
    Sketcher.Constraint("Equal", 1, 3),
    Sketcher.Constraint("Equal", 3, 5),
    Sketcher.Constraint("Equal", 5, 7),
    Sketcher.Constraint("Radius", 1, 4.0),
    Sketcher.Constraint("DistanceX", 2, 2, 2, 1, 10.0),
    Sketcher.Constraint("DistanceY", 0, 2, 0, 1, 42.0),
    Sketcher.Constraint("DistanceX", 1, 3, -1, 1, 9.0),
    Sketcher.Constraint("DistanceY", -1, 1, 1, 3, 129.0),
])
pad7 = body.newObject("PartDesign::Pad", "Pad006")
pad7.Profile = sketch15
pad7.Length = 2
pad7.Reversed = True

# Sketch on YZ plane
sketch16 = body.newObject("Sketcher::SketchObject", "Sketch015")
sketch16.AttachmentSupport = (doc.getObject("YZ_Plane"), [""])
sketch16.MapMode = "FlatFace"
sketch16.AttachmentOffset = App.Placement(V(0, 0, -2), App.Rotation())
sketch16.addGeometry([
    Part.Circle(V(-74.7, 98.7, 0), V(0, 0, 1), 1.7),
    Part.Circle(V(-74.7, 70.2, 0), V(0, 0, 1), 1.7),
], False)
sketch16.addConstraint([
    Sketcher.Constraint("Equal", 0, 1),
    Sketcher.Constraint("Vertical", 0, 3, 1, 3),
    Sketcher.Constraint("Diameter", 0, 3.4),
    Sketcher.Constraint("DistanceY", 1, 3, 0, 3, 28.5),
    Sketcher.Constraint("DistanceX", 0, 3, -1, 1, 74.666081),
    Sketcher.Constraint("DistanceY", -1, 1, 0, 3, 98.687774),
])
pocket9 = body.newObject("PartDesign::Pocket", "Pocket008")
pocket9.Profile = sketch16
pocket9.Length = 12
pocket9.Reversed = True

# Sketch on YZ plane
sketch17 = body.newObject("Sketcher::SketchObject", "Sketch016")
sketch17.AttachmentSupport = (doc.getObject("YZ_Plane"), [""])
sketch17.MapMode = "FlatFace"
sketch17.AttachmentOffset = App.Placement(V(0, 0, 126), App.Rotation())
sketch17.addGeometry([
    Part.Circle(V(-25.8, 17, 0), V(0, 0, 1), 1.7),
    Part.Circle(V(-25.8, 45.5, 0), V(0, 0, 1), 1.7),
], False)
sketch17.addConstraint([
    Sketcher.Constraint("Equal", 0, 1),
    Sketcher.Constraint("Vertical", 0, 3, 1, 3),
    Sketcher.Constraint("Diameter", 0, 3.4),
    Sketcher.Constraint("DistanceY", -1, 1, 0, 3, 17.0),
    Sketcher.Constraint("DistanceY", -1, 1, 1, 3, 45.5),
    Sketcher.Constraint("DistanceX", 0, 3, -1, 1, 25.845398),
])
pocket10 = body.newObject("PartDesign::Pocket", "Pocket009")
pocket10.Profile = sketch17
pocket10.Length = 12

doc.recompute()
